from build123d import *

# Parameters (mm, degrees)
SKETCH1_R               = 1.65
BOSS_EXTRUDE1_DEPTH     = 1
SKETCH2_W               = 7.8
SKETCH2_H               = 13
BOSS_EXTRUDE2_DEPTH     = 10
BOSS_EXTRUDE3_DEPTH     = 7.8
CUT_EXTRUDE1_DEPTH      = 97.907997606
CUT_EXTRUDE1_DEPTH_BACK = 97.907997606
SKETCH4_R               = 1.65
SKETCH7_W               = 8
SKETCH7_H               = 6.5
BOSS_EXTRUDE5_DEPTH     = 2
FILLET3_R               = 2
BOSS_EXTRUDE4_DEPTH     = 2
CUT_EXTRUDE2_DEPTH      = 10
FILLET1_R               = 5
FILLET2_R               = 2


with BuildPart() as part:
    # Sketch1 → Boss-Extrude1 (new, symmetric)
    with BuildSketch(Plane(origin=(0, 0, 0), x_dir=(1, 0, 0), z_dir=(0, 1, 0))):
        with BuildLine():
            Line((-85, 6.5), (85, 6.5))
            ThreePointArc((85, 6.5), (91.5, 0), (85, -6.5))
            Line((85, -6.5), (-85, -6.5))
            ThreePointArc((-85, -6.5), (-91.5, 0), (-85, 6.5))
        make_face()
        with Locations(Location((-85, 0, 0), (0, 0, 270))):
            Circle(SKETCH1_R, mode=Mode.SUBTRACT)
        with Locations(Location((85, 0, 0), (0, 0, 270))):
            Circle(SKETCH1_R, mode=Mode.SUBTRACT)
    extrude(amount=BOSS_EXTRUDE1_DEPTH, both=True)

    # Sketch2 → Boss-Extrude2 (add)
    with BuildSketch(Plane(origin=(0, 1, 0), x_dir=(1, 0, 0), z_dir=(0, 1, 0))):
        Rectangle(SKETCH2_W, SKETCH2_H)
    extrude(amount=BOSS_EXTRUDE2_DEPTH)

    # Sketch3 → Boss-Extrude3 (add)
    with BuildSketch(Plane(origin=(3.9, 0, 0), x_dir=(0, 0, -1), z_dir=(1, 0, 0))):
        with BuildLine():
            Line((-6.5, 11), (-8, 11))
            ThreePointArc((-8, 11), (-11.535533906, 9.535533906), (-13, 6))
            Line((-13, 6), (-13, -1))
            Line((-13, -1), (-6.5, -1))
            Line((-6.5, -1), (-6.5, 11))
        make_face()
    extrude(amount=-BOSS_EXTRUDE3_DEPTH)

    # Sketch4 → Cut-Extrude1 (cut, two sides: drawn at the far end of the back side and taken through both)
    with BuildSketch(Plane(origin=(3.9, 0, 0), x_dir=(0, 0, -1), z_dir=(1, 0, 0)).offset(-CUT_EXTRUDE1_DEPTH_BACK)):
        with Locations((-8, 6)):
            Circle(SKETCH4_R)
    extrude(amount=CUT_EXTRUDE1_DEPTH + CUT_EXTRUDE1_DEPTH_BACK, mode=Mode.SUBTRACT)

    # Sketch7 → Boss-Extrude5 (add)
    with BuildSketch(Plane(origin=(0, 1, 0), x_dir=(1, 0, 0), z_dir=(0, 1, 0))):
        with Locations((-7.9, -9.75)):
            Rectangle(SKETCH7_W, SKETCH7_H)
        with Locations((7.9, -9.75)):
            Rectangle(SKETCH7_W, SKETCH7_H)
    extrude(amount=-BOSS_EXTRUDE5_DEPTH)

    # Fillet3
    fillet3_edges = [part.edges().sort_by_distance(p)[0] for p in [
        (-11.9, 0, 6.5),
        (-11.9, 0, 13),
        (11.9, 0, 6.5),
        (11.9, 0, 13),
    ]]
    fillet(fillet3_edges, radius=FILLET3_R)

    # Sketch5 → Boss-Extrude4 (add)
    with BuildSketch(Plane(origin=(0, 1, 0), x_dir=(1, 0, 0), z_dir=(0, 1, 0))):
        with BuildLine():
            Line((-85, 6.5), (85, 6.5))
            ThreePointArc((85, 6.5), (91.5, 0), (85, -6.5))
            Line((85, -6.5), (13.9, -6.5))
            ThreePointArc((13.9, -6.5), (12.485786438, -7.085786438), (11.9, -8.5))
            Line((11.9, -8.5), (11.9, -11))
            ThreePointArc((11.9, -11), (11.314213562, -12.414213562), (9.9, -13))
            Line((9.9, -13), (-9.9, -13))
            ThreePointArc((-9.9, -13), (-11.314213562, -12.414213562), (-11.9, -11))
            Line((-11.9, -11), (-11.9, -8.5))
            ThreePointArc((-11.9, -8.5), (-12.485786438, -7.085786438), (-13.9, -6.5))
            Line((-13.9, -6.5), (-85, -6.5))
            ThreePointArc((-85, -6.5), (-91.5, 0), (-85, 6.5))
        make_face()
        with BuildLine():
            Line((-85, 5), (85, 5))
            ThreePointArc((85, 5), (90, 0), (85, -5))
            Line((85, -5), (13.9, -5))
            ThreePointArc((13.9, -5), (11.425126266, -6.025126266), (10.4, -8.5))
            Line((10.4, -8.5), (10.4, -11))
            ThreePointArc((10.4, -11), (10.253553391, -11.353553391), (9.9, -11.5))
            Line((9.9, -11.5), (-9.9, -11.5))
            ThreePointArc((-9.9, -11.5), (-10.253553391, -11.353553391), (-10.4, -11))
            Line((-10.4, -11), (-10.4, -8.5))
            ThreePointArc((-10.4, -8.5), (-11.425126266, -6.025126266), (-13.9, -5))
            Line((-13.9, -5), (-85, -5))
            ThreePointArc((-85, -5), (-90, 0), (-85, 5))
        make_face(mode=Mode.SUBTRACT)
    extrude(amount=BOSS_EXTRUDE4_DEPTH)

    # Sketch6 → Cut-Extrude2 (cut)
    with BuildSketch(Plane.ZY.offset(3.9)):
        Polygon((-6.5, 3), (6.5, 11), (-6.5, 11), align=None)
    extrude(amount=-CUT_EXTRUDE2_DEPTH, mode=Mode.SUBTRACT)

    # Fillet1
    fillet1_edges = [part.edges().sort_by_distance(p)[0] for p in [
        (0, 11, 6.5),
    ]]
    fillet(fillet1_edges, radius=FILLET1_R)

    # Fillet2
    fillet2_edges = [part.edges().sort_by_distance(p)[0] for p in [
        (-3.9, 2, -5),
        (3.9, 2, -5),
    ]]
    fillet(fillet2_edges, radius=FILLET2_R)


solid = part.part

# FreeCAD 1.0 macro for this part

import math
import FreeCAD as App
import Part
import Sketcher


def edges_at(feature, points):
    """Names of the edges that pass closest to the given points."""
    edges = feature.Shape.Edges
    near = lambda p: min(range(len(edges)), key=lambda i: edges[i].distToShape(Part.Vertex(*p))[0])
    return sorted({f"Edge{near(p) + 1}" for p in points})


def add_polygon(sketch, points):
    """Adds a closed chain of lines whose ends are joined by coincident constraints."""
    first, n = sketch.GeometryCount, len(points)
    for a, b in zip(points, points[1:] + points[:1]):
        sketch.addGeometry(Part.LineSegment(App.Vector(*a, 0), App.Vector(*b, 0)), False)
    for i in range(n):
        sketch.addConstraint(Sketcher.Constraint("Coincident", first + i, 2, first + (i + 1) % n, 1))

doc = App.newDocument("Part")
params = doc.addObject("Spreadsheet::Sheet", "Params")
for row, (alias, value) in enumerate([
    ("sketch1_diameter", "3.3 mm"),
    ("sketch1_radius", "6.5 mm"),
    ("sketch1_width", "170 mm"),
    ("pad1_length", "2 mm"),
    ("sketch2_height", "13 mm"),
    ("sketch2_width", "7.8 mm"),
    ("pad2_length", "10 mm"),
    ("sketch3_radius", "5 mm"),
    ("sketch3_width", "7 mm"),
    ("sketch3_height", "1.5 mm"),
    ("pad3_length", "7.8 mm"),
    ("sketch4_diameter", "3.3 mm"),
    ("sketch5_width", "8 mm"),
    ("sketch5_height", "6.5 mm"),
    ("pad4_length", "2 mm"),
    ("fillet_radius", "2 mm"),
    ("sketch6_radius", "2 mm"),
    ("sketch6_radius2", "5 mm"),
    ("sketch6_radius3", "6.5 mm"),
    ("sketch6_width", "170 mm"),
    ("sketch6_width2", "71.1 mm"),
    ("pad5_length", "2 mm"),
    ("sketch7_width", "8 mm"),
    ("sketch7_height", "13 mm"),
    ("pocket2_length", "10 mm"),
    ("fillet2_radius", "5 mm"),
    ("fillet3_radius", "2 mm"),
], start=1):
    params.set(f"A{row}", alias)
    params.set(f"B{row}", "=" + value)
    params.setAlias(f"B{row}", alias)

body = doc.addObject("PartDesign::Body", "Body")

# Sketch on XZ plane
sketch1 = doc.addObject("Sketcher::SketchObject", "Sketch")
body.addObject(sketch1)
sketch1.AttachmentSupport = (doc.XZ_Plane, [""])
sketch1.MapMode = "FlatFace"
sketch1.addGeometry([
    Part.LineSegment(App.Vector(85, -6.5, 0), App.Vector(-85, -6.5, 0)),  # 0
    Part.ArcOfCircle(Part.Circle(App.Vector(-85, 0, 0), App.Vector(0, 0, 1), 6.5), math.radians(90), math.radians(270)),  # 1
    Part.LineSegment(App.Vector(-85, 6.5, 0), App.Vector(85, 6.5, 0)),  # 2
    Part.ArcOfCircle(Part.Circle(App.Vector(85, 0, 0), App.Vector(0, 0, 1), 6.5), math.radians(-90), math.radians(90)),  # 3
    Part.Circle(App.Vector(85, 0, 0), App.Vector(0, 0, 1), 1.6),  # 4
    Part.Circle(App.Vector(-85, 0, 0), App.Vector(0, 0, 1), 1.6),  # 5
], False)
sketch1.addConstraint([
    Sketcher.Constraint("Tangent", 0, 2, 1, 2),
    Sketcher.Constraint("Tangent", 1, 1, 2, 1),
    Sketcher.Constraint("Tangent", 2, 2, 3, 2),
    Sketcher.Constraint("Tangent", 3, 1, 0, 1),
    Sketcher.Constraint("Horizontal", 0),
    Sketcher.Constraint("Horizontal", 2),
    Sketcher.Constraint("Coincident", 4, 3, 3, 3),
    Sketcher.Constraint("Coincident", 5, 3, 1, 3),
    Sketcher.Constraint("Equal", 4, 5),
    Sketcher.Constraint("Symmetric", 1, 3, 3, 3, -1, 1),
    Sketcher.Constraint("Diameter", 4, 3.3),
    Sketcher.Constraint("Radius", 1, 6.5),
    Sketcher.Constraint("DistanceX", 0, 2, 0, 1, 170.0),
])
sketch1.setExpression("Constraints[10]", "Params.sketch1_diameter")
sketch1.setExpression("Constraints[11]", "Params.sketch1_radius")
sketch1.setExpression("Constraints[12]", "Params.sketch1_width")
pad1 = doc.addObject("PartDesign::Pad", "Pad")
body.addObject(pad1)
pad1.Profile = sketch1
pad1.setExpression("Length", "Params.pad1_length")
pad1.Midplane = True

# Sketch on XZ plane
sketch2 = doc.addObject("Sketcher::SketchObject", "Sketch001")
body.addObject(sketch2)
sketch2.AttachmentSupport = (doc.XZ_Plane, [""])
sketch2.MapMode = "FlatFace"
sketch2.AttachmentOffset = App.Placement(App.Vector(0, 0, -1), App.Rotation())
add_polygon(sketch2, [(-4, -6), (-4, 6), (4, 6), (4, -6)])  # lines 0-3
sketch2.addConstraint([
    Sketcher.Constraint("Vertical", 0),
    Sketcher.Constraint("Horizontal", 1),
    Sketcher.Constraint("Vertical", 2),
    Sketcher.Constraint("Horizontal", 3),
    Sketcher.Constraint("Symmetric", 0, 2, 2, 2, -1, 1),
    Sketcher.Constraint("DistanceY", 0, 1, 0, 2, 13.0),
    Sketcher.Constraint("DistanceX", 1, 1, 1, 2, 7.8),
])
sketch2.setExpression("Constraints[9]", "Params.sketch2_height")
sketch2.setExpression("Constraints[10]", "Params.sketch2_width")
pad2 = doc.addObject("PartDesign::Pad", "Pad001")
body.addObject(pad2)
pad2.Profile = sketch2
pad2.setExpression("Length", "Params.pad2_length")
pad2.Reversed = True

# Sketch on YZ plane
sketch3 = doc.addObject("Sketcher::SketchObject", "Sketch002")
body.addObject(sketch3)
sketch3.AttachmentSupport = (doc.YZ_Plane, [""])
sketch3.MapMode = "FlatFace"
sketch3.AttachmentOffset = App.Placement(App.Vector(0, 0, 3.9), App.Rotation())
sketch3.addGeometry([
    Part.LineSegment(App.Vector(11, 6.5, 0), App.Vector(11, 8, 0)),  # 0
    Part.ArcOfCircle(Part.Circle(App.Vector(6, 8, 0), App.Vector(0, 0, 1), 5), math.radians(0), math.radians(90)),  # 1
    Part.LineSegment(App.Vector(6, 13, 0), App.Vector(-1, 13, 0)),  # 2
    Part.LineSegment(App.Vector(-1, 13, 0), App.Vector(-1, 6.5, 0)),  # 3
    Part.LineSegment(App.Vector(-1, 6.5, 0), App.Vector(11, 6.5, 0)),  # 4
], False)
sketch3.addConstraint([
    Sketcher.Constraint("Tangent", 0, 2, 1, 1),
    Sketcher.Constraint("Tangent", 1, 2, 2, 1),
    Sketcher.Constraint("Coincident", 2, 2, 3, 1),
    Sketcher.Constraint("Coincident", 3, 2, 4, 1),
    Sketcher.Constraint("Coincident", 4, 2, 0, 1),
    Sketcher.Constraint("Vertical", 0),
    Sketcher.Constraint("Horizontal", 2),
    Sketcher.Constraint("Vertical", 3),
    Sketcher.Constraint("Horizontal", 4),
    Sketcher.Constraint("Radius", 1, 5.0),
    Sketcher.Constraint("DistanceX", 2, 2, 2, 1, 7.0),
    Sketcher.Constraint("DistanceY", 0, 1, 0, 2, 1.5),
    Sketcher.Constraint("DistanceX", -1, 1, 1, 3, 6.0),
    Sketcher.Constraint("DistanceY", -1, 1, 1, 3, 8.0),
])
sketch3.setExpression("Constraints[9]", "Params.sketch3_radius")
sketch3.setExpression("Constraints[10]", "Params.sketch3_width")
sketch3.setExpression("Constraints[11]", "Params.sketch3_height")
pad3 = doc.addObject("PartDesign::Pad", "Pad002")
body.addObject(pad3)
pad3.Profile = sketch3
pad3.setExpression("Length", "Params.pad3_length")
pad3.Reversed = True

# Sketch on YZ plane
sketch4 = doc.addObject("Sketcher::SketchObject", "Sketch003")
body.addObject(sketch4)
sketch4.AttachmentSupport = (doc.YZ_Plane, [""])
sketch4.MapMode = "FlatFace"
sketch4.AttachmentOffset = App.Placement(App.Vector(0, 0, 3.9), App.Rotation())
sketch4.addGeometry(Part.Circle(App.Vector(6, 8, 0), App.Vector(0, 0, 1), 1.6), False)
sketch4.addConstraint([
    Sketcher.Constraint("Diameter", 0, 3.3),
    Sketcher.Constraint("DistanceX", -1, 1, 0, 3, 6.0),
    Sketcher.Constraint("DistanceY", -1, 1, 0, 3, 8.0),
])
sketch4.setExpression("Constraints[0]", "Params.sketch4_diameter")
pocket1 = doc.addObject("PartDesign::Pocket", "Pocket")
body.addObject(pocket1)
pocket1.Profile = sketch4
pocket1.Type = "ThroughAll"
pocket1.Midplane = True

# Sketch on XZ plane
sketch5 = doc.addObject("Sketcher::SketchObject", "Sketch004")
body.addObject(sketch5)
sketch5.AttachmentSupport = (doc.XZ_Plane, [""])
sketch5.MapMode = "FlatFace"
sketch5.AttachmentOffset = App.Placement(App.Vector(0, 0, -1), App.Rotation())
add_polygon(sketch5, [(-12, 6), (-12, 13), (-4, 13), (-4, 6)])  # lines 0-3
add_polygon(sketch5, [(4, 6), (4, 13), (12, 13), (12, 6)])  # lines 4-7
sketch5.addConstraint([
    Sketcher.Constraint("Vertical", 0),
    Sketcher.Constraint("Horizontal", 1),
    Sketcher.Constraint("Vertical", 2),
    Sketcher.Constraint("Horizontal", 3),
    Sketcher.Constraint("Vertical", 4),
    Sketcher.Constraint("Horizontal", 5),
    Sketcher.Constraint("Vertical", 6),
    Sketcher.Constraint("Horizontal", 7),
    Sketcher.Constraint("Symmetric", 1, 2, 4, 2, -2),
    Sketcher.Constraint("Symmetric", 3, 2, 6, 2, -2),
    Sketcher.Constraint("DistanceX", 1, 1, 1, 2, 8.0),
    Sketcher.Constraint("DistanceY", 0, 1, 0, 2, 6.5),
    Sketcher.Constraint("DistanceY", -1, 1, 0, 2, 13.0),
    Sketcher.Constraint("DistanceX", 0, 2, -1, 1, 11.9),
])
sketch5.setExpression("Constraints[18]", "Params.sketch5_width")
sketch5.setExpression("Constraints[19]", "Params.sketch5_height")
pad4 = doc.addObject("PartDesign::Pad", "Pad003")
body.addObject(pad4)
pad4.Profile = sketch5
pad4.setExpression("Length", "Params.pad4_length")
doc.recompute()

fillet = doc.addObject("PartDesign::Fillet", "Fillet")
body.addObject(fillet)
fillet.Base = (pad4, edges_at(pad4, [
    (-11.9, 0, 6.5),
    (-11.9, 0, 13),
    (11.9, 0, 6.5),
    (11.9, 0, 13),
]))
fillet.setExpression("Radius", "Params.fillet_radius")

# Sketch on XZ plane
sketch6 = doc.addObject("Sketcher::SketchObject", "Sketch005")
body.addObject(sketch6)
sketch6.AttachmentSupport = (doc.XZ_Plane, [""])
sketch6.MapMode = "FlatFace"
sketch6.AttachmentOffset = App.Placement(App.Vector(0, 0, -1), App.Rotation())
sketch6.addGeometry([
    Part.LineSegment(App.Vector(85, -6.5, 0), App.Vector(-85, -6.5, 0)),  # 0
    Part.ArcOfCircle(Part.Circle(App.Vector(-85, 0, 0), App.Vector(0, 0, 1), 6.5), math.radians(90), math.radians(270)),  # 1
    Part.LineSegment(App.Vector(-85, 6.5, 0), App.Vector(-13.9, 6.5, 0)),  # 2
    Part.ArcOfCircle(Part.Circle(App.Vector(-13.9, 8.5, 0), App.Vector(0, 0, 1), 2), math.radians(-90), math.radians(0)),  # 3
    Part.LineSegment(App.Vector(-11.9, 8.5, 0), App.Vector(-11.9, 11, 0)),  # 4
    Part.ArcOfCircle(Part.Circle(App.Vector(-9.9, 11, 0), App.Vector(0, 0, 1), 2), math.radians(90), math.radians(180)),  # 5
    Part.LineSegment(App.Vector(-9.9, 13, 0), App.Vector(9.9, 13, 0)),  # 6
    Part.ArcOfCircle(Part.Circle(App.Vector(9.9, 11, 0), App.Vector(0, 0, 1), 2), math.radians(0), math.radians(90)),  # 7
    Part.LineSegment(App.Vector(11.9, 11, 0), App.Vector(11.9, 8.5, 0)),  # 8
    Part.ArcOfCircle(Part.Circle(App.Vector(13.9, 8.5, 0), App.Vector(0, 0, 1), 2), math.radians(-180), math.radians(-90)),  # 9
    Part.LineSegment(App.Vector(13.9, 6.5, 0), App.Vector(85, 6.5, 0)),  # 10
    Part.ArcOfCircle(Part.Circle(App.Vector(85, 0, 0), App.Vector(0, 0, 1), 6.5), math.radians(-90), math.radians(90)),  # 11
    Part.LineSegment(App.Vector(-85, -5, 0), App.Vector(85, -5, 0)),  # 12
    Part.ArcOfCircle(Part.Circle(App.Vector(85, 0, 0), App.Vector(0, 0, 1), 5), math.radians(-90), math.radians(90)),  # 13
    Part.LineSegment(App.Vector(85, 5, 0), App.Vector(13.9, 5, 0)),  # 14
    Part.ArcOfCircle(Part.Circle(App.Vector(13.9, 8.5, 0), App.Vector(0, 0, 1), 3.5), math.radians(-180), math.radians(-90)),  # 15
    Part.LineSegment(App.Vector(10.4, 8.5, 0), App.Vector(10.4, 11, 0)),  # 16
    Part.ArcOfCircle(Part.Circle(App.Vector(9.9, 11, 0), App.Vector(0, 0, 1), 0.5), math.radians(0), math.radians(90)),  # 17
    Part.LineSegment(App.Vector(9.9, 11.5, 0), App.Vector(-9.9, 11.5, 0)),  # 18
    Part.ArcOfCircle(Part.Circle(App.Vector(-9.9, 11, 0), App.Vector(0, 0, 1), 0.5), math.radians(90), math.radians(180)),  # 19
    Part.LineSegment(App.Vector(-10.4, 11, 0), App.Vector(-10.4, 8.5, 0)),  # 20
    Part.ArcOfCircle(Part.Circle(App.Vector(-13.9, 8.5, 0), App.Vector(0, 0, 1), 3.5), math.radians(-90), math.radians(0)),  # 21
    Part.LineSegment(App.Vector(-13.9, 5, 0), App.Vector(-85, 5, 0)),  # 22
    Part.ArcOfCircle(Part.Circle(App.Vector(-85, 0, 0), App.Vector(0, 0, 1), 5), math.radians(90), math.radians(270)),  # 23
], False)
sketch6.addConstraint([
    Sketcher.Constraint("Tangent", 0, 2, 1, 2),
    Sketcher.Constraint("Tangent", 1, 1, 2, 1),
    Sketcher.Constraint("Tangent", 2, 2, 3, 1),
    Sketcher.Constraint("Tangent", 3, 2, 4, 1),
    Sketcher.Constraint("Tangent", 4, 2, 5, 2),
    Sketcher.Constraint("Tangent", 5, 1, 6, 1),
    Sketcher.Constraint("Tangent", 6, 2, 7, 2),
    Sketcher.Constraint("Tangent", 7, 1, 8, 1),
    Sketcher.Constraint("Tangent", 8, 2, 9, 1),
    Sketcher.Constraint("Tangent", 9, 2, 10, 1),
    Sketcher.Constraint("Tangent", 10, 2, 11, 2),
    Sketcher.Constraint("Tangent", 11, 1, 0, 1),
    Sketcher.Constraint("Tangent", 12, 2, 13, 1),
    Sketcher.Constraint("Tangent", 13, 2, 14, 1),
    Sketcher.Constraint("Tangent", 14, 2, 15, 2),
    Sketcher.Constraint("Tangent", 15, 1, 16, 1),
    Sketcher.Constraint("Tangent", 16, 2, 17, 1),
    Sketcher.Constraint("Tangent", 17, 2, 18, 1),
    Sketcher.Constraint("Tangent", 18, 2, 19, 1),
    Sketcher.Constraint("Tangent", 19, 2, 20, 1),
    Sketcher.Constraint("Tangent", 20, 2, 21, 2),
    Sketcher.Constraint("Tangent", 21, 1, 22, 1),
    Sketcher.Constraint("Tangent", 22, 2, 23, 1),
    Sketcher.Constraint("Tangent", 23, 2, 12, 1),
    Sketcher.Constraint("Horizontal", 0),
    Sketcher.Constraint("Horizontal", 2),
    Sketcher.Constraint("Vertical", 4),
    Sketcher.Constraint("Horizontal", 6),
    Sketcher.Constraint("Vertical", 8),
    Sketcher.Constraint("Horizontal", 10),
    Sketcher.Constraint("Horizontal", 12),
    Sketcher.Constraint("Horizontal", 14),
    Sketcher.Constraint("Vertical", 16),
    Sketcher.Constraint("Horizontal", 18),
    Sketcher.Constraint("Vertical", 20),
    Sketcher.Constraint("Horizontal", 22),
    Sketcher.Constraint("Coincident", 13, 3, 11, 3),
    Sketcher.Constraint("Coincident", 15, 3, 9, 3),
    Sketcher.Constraint("Coincident", 17, 3, 7, 3),
    Sketcher.Constraint("Coincident", 19, 3, 5, 3),
    Sketcher.Constraint("Coincident", 21, 3, 3, 3),
    Sketcher.Constraint("Equal", 3, 5),
    Sketcher.Constraint("Equal", 5, 7),
    Sketcher.Constraint("Equal", 7, 9),
    Sketcher.Constraint("Equal", 1, 11),
    Sketcher.Constraint("Symmetric", 1, 3, 11, 3, -1, 1),
    Sketcher.Constraint("Vertical", 23, 3, 0, 2),
    Sketcher.Constraint("Equal", 2, 10),
    Sketcher.Constraint("Radius", 3, 2.0),
    Sketcher.Constraint("Radius", 13, 5.0),
    Sketcher.Constraint("Radius", 1, 6.5),
    Sketcher.Constraint("DistanceX", 0, 2, 0, 1, 170.0),
    Sketcher.Constraint("DistanceX", 2, 1, 2, 2, 71.1),
    Sketcher.Constraint("DistanceY", 4, 1, 4, 2, 2.5),
])
sketch6.setExpression("Constraints[48]", "Params.sketch6_radius")
sketch6.setExpression("Constraints[49]", "Params.sketch6_radius2")
sketch6.setExpression("Constraints[50]", "Params.sketch6_radius3")
sketch6.setExpression("Constraints[51]", "Params.sketch6_width")
sketch6.setExpression("Constraints[52]", "Params.sketch6_width2")
pad5 = doc.addObject("PartDesign::Pad", "Pad004")
body.addObject(pad5)
pad5.Profile = sketch6
pad5.setExpression("Length", "Params.pad5_length")
pad5.Reversed = True

# Sketch on YZ plane
sketch7 = doc.addObject("Sketcher::SketchObject", "Sketch006")
body.addObject(sketch7)
sketch7.AttachmentSupport = (doc.YZ_Plane, [""])
sketch7.MapMode = "FlatFace"
sketch7.AttachmentOffset = App.Placement(App.Vector(0, 0, -3.9), App.Rotation())
add_polygon(sketch7, [(3, -6), (11, 6), (11, -6)])  # lines 0-2
sketch7.addConstraint([
    Sketcher.Constraint("Vertical", 1),
    Sketcher.Constraint("Horizontal", 2),
    Sketcher.Constraint("DistanceX", 2, 2, 2, 1, 8.0),
    Sketcher.Constraint("DistanceY", 1, 2, 1, 1, 13.0),
    Sketcher.Constraint("DistanceX", -1, 1, 0, 2, 11.0),
    Sketcher.Constraint("DistanceY", -1, 1, 0, 2, 6.5),
])
sketch7.setExpression("Constraints[5]", "Params.sketch7_width")
sketch7.setExpression("Constraints[6]", "Params.sketch7_height")
pocket2 = doc.addObject("PartDesign::Pocket", "Pocket001")
body.addObject(pocket2)
pocket2.Profile = sketch7
pocket2.setExpression("Length", "Params.pocket2_length")
pocket2.Reversed = True
doc.recompute()

fillet2 = doc.addObject("PartDesign::Fillet", "Fillet001")
body.addObject(fillet2)
fillet2.Base = (pocket2, edges_at(pocket2, [(0, 11, 6.5)]))
fillet2.setExpression("Radius", "Params.fillet2_radius")
doc.recompute()

fillet3 = doc.addObject("PartDesign::Fillet", "Fillet002")
body.addObject(fillet3)
fillet3.Base = (fillet2, edges_at(fillet2, [(-3.9, 2, -5), (3.9, 2, -5)]))
fillet3.setExpression("Radius", "Params.fillet3_radius")

doc.recompute()
